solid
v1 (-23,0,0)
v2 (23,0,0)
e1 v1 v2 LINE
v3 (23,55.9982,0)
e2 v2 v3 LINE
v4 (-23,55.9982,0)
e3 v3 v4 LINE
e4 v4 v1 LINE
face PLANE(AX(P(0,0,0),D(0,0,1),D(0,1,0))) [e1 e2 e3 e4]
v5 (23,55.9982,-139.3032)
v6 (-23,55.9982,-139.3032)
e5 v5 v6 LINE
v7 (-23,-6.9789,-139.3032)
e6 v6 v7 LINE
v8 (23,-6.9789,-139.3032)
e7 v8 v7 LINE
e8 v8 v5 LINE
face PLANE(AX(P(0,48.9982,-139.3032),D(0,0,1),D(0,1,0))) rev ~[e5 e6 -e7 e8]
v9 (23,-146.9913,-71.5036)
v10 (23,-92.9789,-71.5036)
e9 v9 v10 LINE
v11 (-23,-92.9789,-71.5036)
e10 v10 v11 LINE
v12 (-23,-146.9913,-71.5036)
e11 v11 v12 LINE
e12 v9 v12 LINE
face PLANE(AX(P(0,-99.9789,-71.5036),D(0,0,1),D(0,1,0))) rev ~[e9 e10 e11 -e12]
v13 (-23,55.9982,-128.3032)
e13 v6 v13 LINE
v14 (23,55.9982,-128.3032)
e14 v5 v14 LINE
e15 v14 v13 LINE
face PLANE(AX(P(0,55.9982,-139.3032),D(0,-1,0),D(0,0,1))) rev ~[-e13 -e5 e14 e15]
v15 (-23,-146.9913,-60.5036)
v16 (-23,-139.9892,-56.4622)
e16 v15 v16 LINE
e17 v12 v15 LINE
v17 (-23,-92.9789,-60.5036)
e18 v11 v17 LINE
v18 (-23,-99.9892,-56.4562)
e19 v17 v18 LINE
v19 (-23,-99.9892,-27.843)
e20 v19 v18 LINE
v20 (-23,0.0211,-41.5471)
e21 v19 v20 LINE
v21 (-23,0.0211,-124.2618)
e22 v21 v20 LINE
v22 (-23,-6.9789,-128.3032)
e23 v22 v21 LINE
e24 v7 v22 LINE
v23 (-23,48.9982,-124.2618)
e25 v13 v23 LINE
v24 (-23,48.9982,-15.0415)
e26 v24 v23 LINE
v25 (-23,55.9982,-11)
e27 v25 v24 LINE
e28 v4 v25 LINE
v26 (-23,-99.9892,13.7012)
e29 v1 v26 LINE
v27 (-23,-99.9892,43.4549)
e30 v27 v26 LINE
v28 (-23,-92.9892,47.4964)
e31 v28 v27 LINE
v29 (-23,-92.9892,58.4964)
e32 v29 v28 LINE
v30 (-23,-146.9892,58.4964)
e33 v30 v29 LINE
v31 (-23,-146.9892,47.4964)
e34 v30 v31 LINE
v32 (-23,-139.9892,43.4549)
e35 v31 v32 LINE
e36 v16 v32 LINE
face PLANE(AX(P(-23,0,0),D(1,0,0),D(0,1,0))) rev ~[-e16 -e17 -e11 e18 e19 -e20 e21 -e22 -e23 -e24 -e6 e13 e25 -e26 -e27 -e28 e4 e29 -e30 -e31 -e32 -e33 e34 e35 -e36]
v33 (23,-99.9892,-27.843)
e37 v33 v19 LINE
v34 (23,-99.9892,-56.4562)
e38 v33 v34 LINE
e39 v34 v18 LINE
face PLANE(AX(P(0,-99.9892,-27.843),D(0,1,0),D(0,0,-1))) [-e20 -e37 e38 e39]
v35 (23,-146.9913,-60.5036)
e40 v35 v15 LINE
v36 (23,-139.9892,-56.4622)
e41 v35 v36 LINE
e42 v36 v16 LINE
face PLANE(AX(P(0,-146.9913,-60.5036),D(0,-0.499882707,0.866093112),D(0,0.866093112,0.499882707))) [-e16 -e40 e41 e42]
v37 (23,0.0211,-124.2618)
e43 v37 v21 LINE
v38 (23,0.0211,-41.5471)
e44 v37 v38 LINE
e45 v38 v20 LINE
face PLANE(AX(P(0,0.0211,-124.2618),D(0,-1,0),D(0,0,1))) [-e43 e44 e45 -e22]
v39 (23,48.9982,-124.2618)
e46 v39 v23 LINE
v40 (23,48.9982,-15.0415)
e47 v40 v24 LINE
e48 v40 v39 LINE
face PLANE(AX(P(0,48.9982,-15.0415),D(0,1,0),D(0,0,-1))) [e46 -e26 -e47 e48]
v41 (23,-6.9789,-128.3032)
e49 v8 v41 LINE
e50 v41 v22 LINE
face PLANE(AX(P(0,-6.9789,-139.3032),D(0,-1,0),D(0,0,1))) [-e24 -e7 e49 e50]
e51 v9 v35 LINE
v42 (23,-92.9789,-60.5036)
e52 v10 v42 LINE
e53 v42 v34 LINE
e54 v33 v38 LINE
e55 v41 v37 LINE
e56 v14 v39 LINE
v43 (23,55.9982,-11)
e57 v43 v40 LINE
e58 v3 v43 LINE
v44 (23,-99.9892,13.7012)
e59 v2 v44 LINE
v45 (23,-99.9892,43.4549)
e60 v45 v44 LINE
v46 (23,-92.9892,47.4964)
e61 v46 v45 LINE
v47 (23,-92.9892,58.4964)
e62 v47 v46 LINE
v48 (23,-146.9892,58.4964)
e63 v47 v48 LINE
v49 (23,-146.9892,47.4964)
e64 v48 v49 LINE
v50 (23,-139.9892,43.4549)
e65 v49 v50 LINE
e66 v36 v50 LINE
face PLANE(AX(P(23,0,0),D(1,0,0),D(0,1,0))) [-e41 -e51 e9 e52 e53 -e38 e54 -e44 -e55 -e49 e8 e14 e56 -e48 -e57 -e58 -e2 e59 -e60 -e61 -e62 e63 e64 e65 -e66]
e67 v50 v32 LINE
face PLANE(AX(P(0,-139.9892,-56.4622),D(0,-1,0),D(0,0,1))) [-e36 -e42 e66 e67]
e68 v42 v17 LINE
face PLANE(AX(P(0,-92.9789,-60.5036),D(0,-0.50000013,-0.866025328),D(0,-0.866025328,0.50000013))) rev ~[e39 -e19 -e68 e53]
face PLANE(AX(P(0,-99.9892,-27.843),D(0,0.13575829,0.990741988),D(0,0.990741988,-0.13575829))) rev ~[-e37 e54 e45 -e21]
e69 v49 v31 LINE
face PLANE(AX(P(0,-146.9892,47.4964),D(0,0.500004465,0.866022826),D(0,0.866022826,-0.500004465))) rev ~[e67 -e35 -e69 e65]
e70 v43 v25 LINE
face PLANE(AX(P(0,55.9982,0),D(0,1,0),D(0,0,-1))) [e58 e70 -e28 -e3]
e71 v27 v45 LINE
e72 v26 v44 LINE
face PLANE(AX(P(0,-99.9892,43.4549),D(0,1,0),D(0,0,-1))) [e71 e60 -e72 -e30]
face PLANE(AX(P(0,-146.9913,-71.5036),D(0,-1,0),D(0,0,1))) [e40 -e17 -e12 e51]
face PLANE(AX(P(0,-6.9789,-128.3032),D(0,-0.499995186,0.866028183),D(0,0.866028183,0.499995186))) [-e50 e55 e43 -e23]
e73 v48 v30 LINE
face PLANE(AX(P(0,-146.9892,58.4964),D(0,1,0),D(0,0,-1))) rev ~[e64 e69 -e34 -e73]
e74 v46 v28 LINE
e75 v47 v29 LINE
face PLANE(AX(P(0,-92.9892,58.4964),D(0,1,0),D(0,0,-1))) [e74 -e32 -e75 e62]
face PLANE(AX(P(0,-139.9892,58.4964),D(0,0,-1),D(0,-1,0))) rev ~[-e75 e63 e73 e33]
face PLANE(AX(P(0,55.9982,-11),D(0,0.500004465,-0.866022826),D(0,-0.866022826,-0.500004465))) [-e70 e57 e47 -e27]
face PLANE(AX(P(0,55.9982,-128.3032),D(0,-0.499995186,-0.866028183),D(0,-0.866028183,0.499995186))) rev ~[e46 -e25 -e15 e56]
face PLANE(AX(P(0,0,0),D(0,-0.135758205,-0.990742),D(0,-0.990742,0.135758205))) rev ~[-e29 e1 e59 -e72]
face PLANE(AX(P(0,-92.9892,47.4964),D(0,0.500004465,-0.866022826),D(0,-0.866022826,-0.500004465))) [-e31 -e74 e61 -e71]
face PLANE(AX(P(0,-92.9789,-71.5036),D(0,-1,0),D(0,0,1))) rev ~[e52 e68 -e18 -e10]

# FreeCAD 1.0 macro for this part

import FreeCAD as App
import Part
import Sketcher

V = App.Vector


def add_polygon(sketch, points):
    """Adds a closed chain of lines whose ends are joined by coincident constraints."""
    first, n = sketch.GeometryCount, len(points)
    for a, b in zip(points, points[1:] + points[:1]):
        sketch.addGeometry(Part.LineSegment(App.Vector(*a, 0), App.Vector(*b, 0)), False)
    for i in range(n):
        sketch.addConstraint(Sketcher.Constraint("Coincident", first + i, 2, first + (i + 1) % n, 1))

doc = App.newDocument("Part")
body = doc.addObject("PartDesign::Body", "Body")

# Sketch on YZ plane
sketch1 = body.newObject("Sketcher::SketchObject", "Sketch")
sketch1.AttachmentSupport = (doc.getObject("YZ_Plane"), [""])
sketch1.MapMode = "FlatFace"
add_polygon(sketch1, [(55.9982, 0), (0, 0), (-99.9892, 13.7012), (-99.9892, 43.4549), (-92.9892, 47.4964), (-92.9892, 58.4964), (-146.9892, 58.4964), (-146.9892, 47.4964), (-139.9892, 43.4549), (-139.9892, -56.4622), (-146.9913, -60.5036), (-146.9913, -71.5036), (-92.9789, -71.5036), (-92.9789, -60.5036), (-99.9892, -56.4562), (-99.9892, -27.843), (0.0211, -41.5471), (0.0211, -124.2618), (-6.9789, -128.3032), (-6.9789, -139.3032), (55.9982, -139.3032), (55.9982, -128.3032), (48.9982, -124.2618), (48.9982, -15.0415), (55.9982, -11)])  # lines 0-24
sketch1.addConstraint([
    Sketcher.Constraint("Horizontal", 0),
    Sketcher.Constraint("Vertical", 2),
    Sketcher.Constraint("Vertical", 4),
    Sketcher.Constraint("Horizontal", 5),
    Sketcher.Constraint("Vertical", 6),
    Sketcher.Constraint("Vertical", 8),
    Sketcher.Constraint("Vertical", 10),
    Sketcher.Constraint("Horizontal", 11),
    Sketcher.Constraint("Vertical", 12),
    Sketcher.Constraint("Vertical", 14),
    Sketcher.Constraint("Vertical", 16),
    Sketcher.Constraint("Vertical", 18),
    Sketcher.Constraint("Horizontal", 19),
    Sketcher.Constraint("Vertical", 20),
    Sketcher.Constraint("Vertical", 22),
    Sketcher.Constraint("Vertical", 24),
    Sketcher.Constraint("Coincident", 0, 2, -1, 1),
    Sketcher.Constraint("DistanceY", 4, 1, 4, 2, 11.0),
    Sketcher.Constraint("DistanceY", 6, 2, 6, 1, 11.0),
    Sketcher.Constraint("DistanceY", 10, 2, 10, 1, 11.0),
    Sketcher.Constraint("DistanceY", 12, 1, 12, 2, 11.0),
    Sketcher.Constraint("DistanceY", 18, 2, 18, 1, 11.0),
    Sketcher.Constraint("DistanceY", 20, 1, 20, 2, 11.0),
    Sketcher.Constraint("DistanceY", 24, 1, 24, 2, 11.0),
    Sketcher.Constraint("DistanceX", 2, 2, 3, 2, 7.0),
    Sketcher.Constraint("DistanceX", 6, 2, 7, 2, 7.0),
    Sketcher.Constraint("DistanceX", 7, 2, 2, 2, 40.0),
    Sketcher.Constraint("DistanceX", 8, 2, 13, 2, 40.0),
    Sketcher.Constraint("DistanceX", 17, 2, 16, 2, 7.0),
    Sketcher.Constraint("DistanceX", 21, 2, 20, 2, 7.0),
    Sketcher.Constraint("DistanceX", 22, 2, 23, 2, 7.0),
    Sketcher.Constraint("DistanceY", 9, 2, 6, 2, 108.0),
    Sketcher.Constraint("DistanceX", 12, 2, 15, 2, 93.0),
    Sketcher.Constraint("DistanceX", 19, 1, 19, 2, 62.977),
    Sketcher.Constraint("DistanceY", 8, 2, 8, 1, 99.917),
    Sketcher.Constraint("Distance", 3, 8.083),
    Sketcher.Constraint("Distance", 7, 8.083),
    Sketcher.Constraint("Distance", 23, 8.083),
    Sketcher.Constraint("DistanceX", 0, 2, 0, 1, 55.9982),
    Sketcher.Constraint("DistanceX", 11, 1, 11, 2, 54.0124),
    Sketcher.Constraint("DistanceY", 2, 1, 2, 2, 29.7537),
    Sketcher.Constraint("DistanceY", 14, 1, 14, 2, 28.6132),
    Sketcher.Constraint("DistanceY", 16, 2, 16, 1, 82.7147),
    Sketcher.Constraint("DistanceY", 22, 1, 22, 2, 109.2203),
    Sketcher.Constraint("DistanceY", -1, 1, 2, 2, 43.455),
    Sketcher.Constraint("DistanceY", 14, 2, -1, 1, 27.843),
    Sketcher.Constraint("DistanceY", 15, 2, -1, 1, 41.547),
    Sketcher.Constraint("DistanceX", 9, 2, 8, 2, 7.002),
    Sketcher.Constraint("DistanceY", 17, 2, 15, 2, 86.756),
])
pad1 = body.newObject("PartDesign::Pad", "Pad")
pad1.Profile = sketch1
pad1.Length = 46
pad1.Midplane = True

doc.recompute()
